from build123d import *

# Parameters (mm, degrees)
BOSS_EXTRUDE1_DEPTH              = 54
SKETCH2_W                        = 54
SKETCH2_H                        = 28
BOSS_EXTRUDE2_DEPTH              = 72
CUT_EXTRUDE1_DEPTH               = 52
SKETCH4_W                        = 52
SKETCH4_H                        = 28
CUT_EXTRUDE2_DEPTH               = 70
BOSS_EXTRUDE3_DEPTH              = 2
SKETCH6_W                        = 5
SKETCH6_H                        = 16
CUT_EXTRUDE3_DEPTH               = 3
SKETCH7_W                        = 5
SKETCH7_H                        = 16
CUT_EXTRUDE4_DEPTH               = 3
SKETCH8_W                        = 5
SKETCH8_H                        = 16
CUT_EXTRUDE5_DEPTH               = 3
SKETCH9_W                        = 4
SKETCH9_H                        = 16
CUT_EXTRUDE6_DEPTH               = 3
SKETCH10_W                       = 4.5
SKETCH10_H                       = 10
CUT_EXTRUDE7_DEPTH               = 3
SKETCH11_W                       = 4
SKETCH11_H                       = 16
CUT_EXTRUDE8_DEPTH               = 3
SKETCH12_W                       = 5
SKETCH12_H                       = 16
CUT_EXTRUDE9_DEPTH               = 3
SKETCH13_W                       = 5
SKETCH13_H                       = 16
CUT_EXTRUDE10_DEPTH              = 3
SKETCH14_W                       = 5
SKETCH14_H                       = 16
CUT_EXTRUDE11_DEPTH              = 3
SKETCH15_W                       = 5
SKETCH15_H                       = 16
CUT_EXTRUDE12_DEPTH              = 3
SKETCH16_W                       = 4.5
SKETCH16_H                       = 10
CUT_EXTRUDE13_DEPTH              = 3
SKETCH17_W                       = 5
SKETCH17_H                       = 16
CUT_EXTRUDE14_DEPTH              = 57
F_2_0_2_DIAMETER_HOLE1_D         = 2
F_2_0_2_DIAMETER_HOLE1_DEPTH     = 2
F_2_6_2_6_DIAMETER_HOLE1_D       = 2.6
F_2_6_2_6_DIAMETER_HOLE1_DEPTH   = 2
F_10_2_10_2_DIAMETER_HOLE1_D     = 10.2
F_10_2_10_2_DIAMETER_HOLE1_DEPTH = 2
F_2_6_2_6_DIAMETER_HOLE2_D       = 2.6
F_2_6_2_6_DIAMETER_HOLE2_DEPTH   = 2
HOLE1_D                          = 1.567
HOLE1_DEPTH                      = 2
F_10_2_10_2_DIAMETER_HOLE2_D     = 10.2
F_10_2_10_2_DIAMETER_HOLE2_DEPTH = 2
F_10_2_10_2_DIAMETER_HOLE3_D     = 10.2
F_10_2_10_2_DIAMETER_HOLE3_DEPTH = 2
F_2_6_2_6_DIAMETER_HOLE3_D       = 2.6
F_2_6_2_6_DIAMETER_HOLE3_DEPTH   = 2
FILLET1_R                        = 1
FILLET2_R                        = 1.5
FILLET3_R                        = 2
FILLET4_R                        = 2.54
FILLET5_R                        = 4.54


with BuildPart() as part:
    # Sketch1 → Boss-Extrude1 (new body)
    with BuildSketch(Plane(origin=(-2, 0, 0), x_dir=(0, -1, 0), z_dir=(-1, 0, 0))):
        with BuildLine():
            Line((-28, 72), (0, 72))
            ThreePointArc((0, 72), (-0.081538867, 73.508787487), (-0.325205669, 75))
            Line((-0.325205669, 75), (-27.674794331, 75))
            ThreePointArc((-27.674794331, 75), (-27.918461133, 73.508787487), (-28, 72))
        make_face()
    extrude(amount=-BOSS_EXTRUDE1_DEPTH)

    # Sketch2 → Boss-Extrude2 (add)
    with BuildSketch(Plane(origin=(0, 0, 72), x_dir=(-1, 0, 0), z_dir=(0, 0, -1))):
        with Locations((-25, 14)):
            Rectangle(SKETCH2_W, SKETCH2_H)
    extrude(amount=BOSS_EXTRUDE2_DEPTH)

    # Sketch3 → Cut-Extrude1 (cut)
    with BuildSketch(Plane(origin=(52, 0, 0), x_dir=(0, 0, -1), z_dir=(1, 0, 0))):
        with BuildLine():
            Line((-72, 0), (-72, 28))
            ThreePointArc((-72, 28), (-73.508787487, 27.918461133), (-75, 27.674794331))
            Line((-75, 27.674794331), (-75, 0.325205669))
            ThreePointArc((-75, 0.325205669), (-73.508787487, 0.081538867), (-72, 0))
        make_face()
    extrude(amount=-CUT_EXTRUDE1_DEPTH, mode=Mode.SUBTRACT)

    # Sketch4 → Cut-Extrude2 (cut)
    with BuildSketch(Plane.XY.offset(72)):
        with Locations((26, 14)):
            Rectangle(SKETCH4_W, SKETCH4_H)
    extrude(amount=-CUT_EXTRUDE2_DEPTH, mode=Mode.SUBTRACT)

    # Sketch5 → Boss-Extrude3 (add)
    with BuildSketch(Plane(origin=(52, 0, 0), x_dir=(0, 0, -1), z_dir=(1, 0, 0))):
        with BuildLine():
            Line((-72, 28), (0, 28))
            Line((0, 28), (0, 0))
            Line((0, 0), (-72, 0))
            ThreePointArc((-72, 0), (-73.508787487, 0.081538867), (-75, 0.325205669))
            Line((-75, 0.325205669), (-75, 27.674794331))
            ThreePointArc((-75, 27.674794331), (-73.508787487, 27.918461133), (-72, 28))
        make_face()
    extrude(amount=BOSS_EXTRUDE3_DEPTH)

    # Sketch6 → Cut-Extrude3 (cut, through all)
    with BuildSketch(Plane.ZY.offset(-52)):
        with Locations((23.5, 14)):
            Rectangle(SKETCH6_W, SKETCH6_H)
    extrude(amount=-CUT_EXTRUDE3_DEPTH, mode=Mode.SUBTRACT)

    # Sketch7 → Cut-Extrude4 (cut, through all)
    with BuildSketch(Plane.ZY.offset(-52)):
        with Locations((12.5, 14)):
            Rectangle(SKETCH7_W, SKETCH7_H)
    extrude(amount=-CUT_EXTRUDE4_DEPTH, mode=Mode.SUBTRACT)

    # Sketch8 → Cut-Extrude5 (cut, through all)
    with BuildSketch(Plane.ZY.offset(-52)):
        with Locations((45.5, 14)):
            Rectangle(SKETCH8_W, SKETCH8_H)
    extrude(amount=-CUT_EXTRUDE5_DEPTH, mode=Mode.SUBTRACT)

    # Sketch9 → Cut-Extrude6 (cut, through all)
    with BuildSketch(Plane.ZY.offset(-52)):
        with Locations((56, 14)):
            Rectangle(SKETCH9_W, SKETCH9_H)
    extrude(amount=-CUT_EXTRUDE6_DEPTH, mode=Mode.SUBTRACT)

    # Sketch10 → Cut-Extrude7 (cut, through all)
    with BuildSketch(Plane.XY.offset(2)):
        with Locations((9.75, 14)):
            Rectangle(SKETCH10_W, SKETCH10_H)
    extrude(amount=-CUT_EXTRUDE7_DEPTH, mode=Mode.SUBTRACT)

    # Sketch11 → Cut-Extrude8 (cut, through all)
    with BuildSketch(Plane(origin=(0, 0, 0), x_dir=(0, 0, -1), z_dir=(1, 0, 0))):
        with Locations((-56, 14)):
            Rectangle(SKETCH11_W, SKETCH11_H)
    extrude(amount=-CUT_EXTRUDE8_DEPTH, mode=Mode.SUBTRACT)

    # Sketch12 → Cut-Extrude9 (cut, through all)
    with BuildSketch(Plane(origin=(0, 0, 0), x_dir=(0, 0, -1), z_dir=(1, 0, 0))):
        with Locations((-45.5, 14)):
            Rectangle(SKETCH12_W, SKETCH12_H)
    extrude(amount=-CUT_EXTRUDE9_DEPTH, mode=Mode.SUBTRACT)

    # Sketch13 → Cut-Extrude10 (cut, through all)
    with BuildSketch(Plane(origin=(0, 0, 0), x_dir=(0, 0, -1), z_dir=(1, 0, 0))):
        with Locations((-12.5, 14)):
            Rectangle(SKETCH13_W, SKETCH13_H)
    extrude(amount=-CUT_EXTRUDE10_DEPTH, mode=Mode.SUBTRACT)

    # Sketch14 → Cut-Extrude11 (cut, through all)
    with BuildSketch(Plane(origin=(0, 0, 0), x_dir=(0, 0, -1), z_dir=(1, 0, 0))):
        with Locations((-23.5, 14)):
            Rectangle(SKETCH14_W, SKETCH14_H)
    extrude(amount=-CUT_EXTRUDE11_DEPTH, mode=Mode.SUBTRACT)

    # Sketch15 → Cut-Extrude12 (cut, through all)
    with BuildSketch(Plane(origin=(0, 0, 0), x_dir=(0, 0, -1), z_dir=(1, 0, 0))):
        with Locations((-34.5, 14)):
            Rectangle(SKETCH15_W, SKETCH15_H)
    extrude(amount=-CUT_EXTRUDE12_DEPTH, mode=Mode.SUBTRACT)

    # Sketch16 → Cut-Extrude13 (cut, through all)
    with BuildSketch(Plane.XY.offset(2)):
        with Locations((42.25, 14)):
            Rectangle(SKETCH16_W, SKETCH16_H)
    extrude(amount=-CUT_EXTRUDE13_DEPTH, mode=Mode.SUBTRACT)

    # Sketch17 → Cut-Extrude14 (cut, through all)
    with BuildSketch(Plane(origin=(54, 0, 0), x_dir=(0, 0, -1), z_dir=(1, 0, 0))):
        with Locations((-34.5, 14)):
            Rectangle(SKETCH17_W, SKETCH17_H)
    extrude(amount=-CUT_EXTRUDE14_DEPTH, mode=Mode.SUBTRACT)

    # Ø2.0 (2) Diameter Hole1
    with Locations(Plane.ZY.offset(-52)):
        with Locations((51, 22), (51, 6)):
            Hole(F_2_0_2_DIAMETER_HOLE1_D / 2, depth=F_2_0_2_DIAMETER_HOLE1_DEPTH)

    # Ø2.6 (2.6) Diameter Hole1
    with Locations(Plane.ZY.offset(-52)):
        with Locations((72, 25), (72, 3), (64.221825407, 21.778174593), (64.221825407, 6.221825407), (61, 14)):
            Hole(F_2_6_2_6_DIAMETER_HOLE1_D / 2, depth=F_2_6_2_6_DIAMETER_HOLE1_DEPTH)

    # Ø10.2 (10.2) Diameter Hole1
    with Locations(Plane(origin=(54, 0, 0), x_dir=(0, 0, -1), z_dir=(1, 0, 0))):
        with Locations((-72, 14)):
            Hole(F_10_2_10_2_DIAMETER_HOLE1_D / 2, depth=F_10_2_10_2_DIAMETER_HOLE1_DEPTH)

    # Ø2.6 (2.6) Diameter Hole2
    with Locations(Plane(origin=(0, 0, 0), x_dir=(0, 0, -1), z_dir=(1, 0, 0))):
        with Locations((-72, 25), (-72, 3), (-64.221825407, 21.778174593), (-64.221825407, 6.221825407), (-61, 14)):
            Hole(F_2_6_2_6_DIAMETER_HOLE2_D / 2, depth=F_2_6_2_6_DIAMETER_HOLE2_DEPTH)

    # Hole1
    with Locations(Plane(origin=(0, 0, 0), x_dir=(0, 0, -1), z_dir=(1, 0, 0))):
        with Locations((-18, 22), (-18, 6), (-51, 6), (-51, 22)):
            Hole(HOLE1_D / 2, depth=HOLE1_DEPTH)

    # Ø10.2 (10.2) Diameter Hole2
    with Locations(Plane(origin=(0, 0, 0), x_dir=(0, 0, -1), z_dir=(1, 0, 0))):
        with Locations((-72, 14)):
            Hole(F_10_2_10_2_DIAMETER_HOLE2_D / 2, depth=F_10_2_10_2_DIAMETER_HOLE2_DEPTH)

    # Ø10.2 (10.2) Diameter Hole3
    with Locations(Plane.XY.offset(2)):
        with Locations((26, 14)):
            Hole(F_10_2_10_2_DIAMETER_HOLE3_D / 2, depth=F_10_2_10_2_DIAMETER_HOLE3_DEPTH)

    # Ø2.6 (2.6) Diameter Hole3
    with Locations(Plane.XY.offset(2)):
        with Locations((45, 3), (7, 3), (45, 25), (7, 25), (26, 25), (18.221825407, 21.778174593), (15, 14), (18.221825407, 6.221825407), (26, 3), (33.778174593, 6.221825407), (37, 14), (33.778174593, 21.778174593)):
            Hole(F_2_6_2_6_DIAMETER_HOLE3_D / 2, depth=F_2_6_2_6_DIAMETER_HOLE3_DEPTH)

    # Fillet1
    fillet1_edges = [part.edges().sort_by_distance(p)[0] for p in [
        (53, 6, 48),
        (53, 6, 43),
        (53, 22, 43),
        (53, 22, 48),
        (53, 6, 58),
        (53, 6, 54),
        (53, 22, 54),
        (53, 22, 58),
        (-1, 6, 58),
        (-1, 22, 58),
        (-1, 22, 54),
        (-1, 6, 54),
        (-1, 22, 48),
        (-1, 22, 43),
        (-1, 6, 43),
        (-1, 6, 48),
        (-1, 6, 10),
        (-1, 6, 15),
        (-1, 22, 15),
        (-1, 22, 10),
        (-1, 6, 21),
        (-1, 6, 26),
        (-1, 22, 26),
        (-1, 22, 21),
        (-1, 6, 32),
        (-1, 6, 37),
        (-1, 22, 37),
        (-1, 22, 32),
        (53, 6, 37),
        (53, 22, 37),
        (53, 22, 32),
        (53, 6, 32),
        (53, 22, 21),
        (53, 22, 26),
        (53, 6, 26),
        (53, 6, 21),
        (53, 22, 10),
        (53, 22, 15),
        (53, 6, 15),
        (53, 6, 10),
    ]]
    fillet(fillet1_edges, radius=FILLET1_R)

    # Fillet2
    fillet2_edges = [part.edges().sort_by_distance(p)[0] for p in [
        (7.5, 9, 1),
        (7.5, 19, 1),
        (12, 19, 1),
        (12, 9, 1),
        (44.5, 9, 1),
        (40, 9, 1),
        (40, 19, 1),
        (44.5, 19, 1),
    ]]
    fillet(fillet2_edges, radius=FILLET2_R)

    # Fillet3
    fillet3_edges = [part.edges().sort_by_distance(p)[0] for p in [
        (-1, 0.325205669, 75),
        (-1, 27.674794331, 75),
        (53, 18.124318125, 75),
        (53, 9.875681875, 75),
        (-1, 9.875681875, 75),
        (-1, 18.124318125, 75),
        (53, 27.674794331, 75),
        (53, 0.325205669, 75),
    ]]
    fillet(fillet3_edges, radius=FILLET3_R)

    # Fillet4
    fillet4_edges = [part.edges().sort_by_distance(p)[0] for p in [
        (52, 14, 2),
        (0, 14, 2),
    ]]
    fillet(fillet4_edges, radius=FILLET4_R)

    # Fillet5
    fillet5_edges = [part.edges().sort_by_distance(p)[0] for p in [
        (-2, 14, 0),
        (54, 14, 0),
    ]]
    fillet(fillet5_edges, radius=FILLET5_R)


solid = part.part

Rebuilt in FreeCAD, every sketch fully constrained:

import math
import FreeCAD as App
import Part
import Sketcher
from FreeCAD import Vector


def edges_at(feature, points):
    """Names of the edges that pass closest to the given points."""
    edges = feature.Shape.Edges
    near = lambda p: min(range(len(edges)), key=lambda i: edges[i].distToShape(Part.Vertex(*p))[0])
    return sorted({f"Edge{near(p) + 1}" for p in points})

doc = App.newDocument("Part")
body = doc.addObject("PartDesign::Body", "Body")

# Sketch on YZ plane
sketch1 = doc.addObject("Sketcher::SketchObject", "Sketch")
body.addObject(sketch1)
sketch1.AttachmentSupport = (doc.YZ_Plane, [""])
sketch1.MapMode = "FlatFace"
sketch1.AttachmentOffset = App.Placement(Vector(0, 0, -2), App.Rotation())
sketch1.addGeometry([
    Part.LineSegment(Vector(28, 72, 0), Vector(0, 72, 0)),
    Part.ArcOfCircle(Part.Circle(Vector(14, 72, 0), Vector(0, 0, 1), 14), math.radians(167.63), math.radians(180)),
    Part.LineSegment(Vector(0.3, 75, 0), Vector(27.7, 75, 0)),
    Part.ArcOfCircle(Part.Circle(Vector(14, 72, 0), Vector(0, 0, 1), 14), math.radians(0), math.radians(12.37)),
], False)
sketch1.addConstraint([
    Sketcher.Constraint("Coincident", 0, 2, 1, 2),
    Sketcher.Constraint("Coincident", 1, 1, 2, 1),
    Sketcher.Constraint("Coincident", 2, 2, 3, 2),
    Sketcher.Constraint("Coincident", 3, 1, 0, 1),
    Sketcher.Constraint("Horizontal", 0),
    Sketcher.Constraint("Horizontal", 2),
    Sketcher.Constraint("Coincident", 3, 3, 1, 3),
    Sketcher.Constraint("Equal", 1, 3),
    Sketcher.Constraint("PointOnObject", 0, 2, -2),
    Sketcher.Constraint("Horizontal", 3, 3, 0, 2),
    Sketcher.Constraint("Radius", 1, 14.0),
    Sketcher.Constraint("DistanceY", -1, 1, 1, 3, 72.0),
    Sketcher.Constraint("DistanceY", -1, 1, 1, 1, 75.0),
])
pad1 = doc.addObject("PartDesign::Pad", "Pad")
body.addObject(pad1)
pad1.Profile = sketch1
pad1.Length = 54

# Sketch on XY plane
sketch2 = doc.addObject("Sketcher::SketchObject", "Sketch001")
body.addObject(sketch2)
sketch2.AttachmentSupport = (doc.XY_Plane, [""])
sketch2.MapMode = "FlatFace"
sketch2.AttachmentOffset = App.Placement(Vector(0, 0, 72), App.Rotation())
sketch2.addGeometry([
    Part.LineSegment(Vector(52, 28, 0), Vector(52, 0, 0)),
    Part.LineSegment(Vector(52, 0, 0), Vector(-2, 0, 0)),
    Part.LineSegment(Vector(-2, 0, 0), Vector(-2, 28, 0)),
    Part.LineSegment(Vector(-2, 28, 0), Vector(52, 28, 0)),
], False)
sketch2.addConstraint([
    Sketcher.Constraint("Coincident", 0, 2, 1, 1),
    Sketcher.Constraint("Coincident", 1, 2, 2, 1),
    Sketcher.Constraint("Coincident", 2, 2, 3, 1),
    Sketcher.Constraint("Coincident", 3, 2, 0, 1),
    Sketcher.Constraint("Vertical", 0),
    Sketcher.Constraint("Horizontal", 1),
    Sketcher.Constraint("Vertical", 2),
    Sketcher.Constraint("Horizontal", 3),
    Sketcher.Constraint("PointOnObject", 0, 2, -1),
    Sketcher.Constraint("DistanceX", 1, 2, 1, 1, 54.0),
    Sketcher.Constraint("DistanceY", 0, 2, 0, 1, 28.0),
    Sketcher.Constraint("DistanceX", -1, 1, 0, 2, 52.0),
])
pad2 = doc.addObject("PartDesign::Pad", "Pad001")
body.addObject(pad2)
pad2.Profile = sketch2
pad2.Length = 72
pad2.Reversed = True

# Sketch on YZ plane
sketch3 = doc.addObject("Sketcher::SketchObject", "Sketch002")
body.addObject(sketch3)
sketch3.AttachmentSupport = (doc.YZ_Plane, [""])
sketch3.MapMode = "FlatFace"
sketch3.AttachmentOffset = App.Placement(Vector(0, 0, 52), App.Rotation())
sketch3.addGeometry([
    Part.LineSegment(Vector(0, 72, 0), Vector(28, 72, 0)),
    Part.ArcOfCircle(Part.Circle(Vector(14, 72, 0), Vector(0, 0, 1), 14), math.radians(0), math.radians(12.37)),
    Part.LineSegment(Vector(27.7, 75, 0), Vector(0.3, 75, 0)),
    Part.ArcOfCircle(Part.Circle(Vector(14, 72, 0), Vector(0, 0, 1), 14), math.radians(167.63), math.radians(180)),
], False)
sketch3.addConstraint([
    Sketcher.Constraint("Coincident", 0, 2, 1, 1),
    Sketcher.Constraint("Coincident", 1, 2, 2, 1),
    Sketcher.Constraint("Coincident", 2, 2, 3, 1),
    Sketcher.Constraint("Coincident", 3, 2, 0, 1),
    Sketcher.Constraint("Horizontal", 0),
    Sketcher.Constraint("Horizontal", 2),
    Sketcher.Constraint("Coincident", 3, 3, 1, 3),
    Sketcher.Constraint("Equal", 1, 3),
    Sketcher.Constraint("PointOnObject", 3, 2, -2),
    Sketcher.Constraint("Horizontal", 3, 3, 0, 2),
    Sketcher.Constraint("Radius", 1, 14.0),
    Sketcher.Constraint("DistanceY", -1, 1, 1, 3, 72.0),
    Sketcher.Constraint("DistanceY", -1, 1, 1, 2, 75.0),
])
pocket1 = doc.addObject("PartDesign::Pocket", "Pocket")
body.addObject(pocket1)
pocket1.Profile = sketch3
pocket1.Length = 52

# Sketch on XY plane
sketch4 = doc.addObject("Sketcher::SketchObject", "Sketch003")
body.addObject(sketch4)
sketch4.AttachmentSupport = (doc.XY_Plane, [""])
sketch4.MapMode = "FlatFace"
sketch4.AttachmentOffset = App.Placement(Vector(0, 0, 72), App.Rotation())
sketch4.addGeometry([
    Part.LineSegment(Vector(0, 28, 0), Vector(0, 0, 0)),
    Part.LineSegment(Vector(0, 0, 0), Vector(52, 0, 0)),
    Part.LineSegment(Vector(52, 0, 0), Vector(52, 28, 0)),
    Part.LineSegment(Vector(52, 28, 0), Vector(0, 28, 0)),
], False)
sketch4.addConstraint([
    Sketcher.Constraint("Coincident", 0, 2, 1, 1),
    Sketcher.Constraint("Coincident", 1, 2, 2, 1),
    Sketcher.Constraint("Coincident", 2, 2, 3, 1),
    Sketcher.Constraint("Coincident", 3, 2, 0, 1),
    Sketcher.Constraint("Vertical", 0),
    Sketcher.Constraint("Horizontal", 1),
    Sketcher.Constraint("Vertical", 2),
    Sketcher.Constraint("Horizontal", 3),
    Sketcher.Constraint("Coincident", 0, 2, -1, 1),
    Sketcher.Constraint("DistanceX", 1, 1, 1, 2, 52.0),
    Sketcher.Constraint("DistanceY", 0, 2, 0, 1, 28.0),
])
pocket2 = doc.addObject("PartDesign::Pocket", "Pocket001")
body.addObject(pocket2)
pocket2.Profile = sketch4
pocket2.Length = 70

# Sketch on YZ plane
sketch5 = doc.addObject("Sketcher::SketchObject", "Sketch004")
body.addObject(sketch5)
sketch5.AttachmentSupport = (doc.YZ_Plane, [""])
sketch5.MapMode = "FlatFace"
sketch5.AttachmentOffset = App.Placement(Vector(0, 0, 52), App.Rotation())
sketch5.addGeometry([
    Part.LineSegment(Vector(28, 0, 0), Vector(28, 72, 0)),  # 0
    Part.ArcOfCircle(Part.Circle(Vector(14, 72, 0), Vector(0, 0, 1), 14), math.radians(0), math.radians(12.37)),  # 1
    Part.LineSegment(Vector(27.7, 75, 0), Vector(0.3, 75, 0)),  # 2
    Part.ArcOfCircle(Part.Circle(Vector(14, 72, 0), Vector(0, 0, 1), 14), math.radians(167.63), math.radians(180)),  # 3
    Part.LineSegment(Vector(0, 72, 0), Vector(0, 0, 0)),  # 4
    Part.LineSegment(Vector(0, 0, 0), Vector(28, 0, 0)),  # 5
], False)
sketch5.addConstraint([
    Sketcher.Constraint("Tangent", 0, 2, 1, 1),
    Sketcher.Constraint("Coincident", 1, 2, 2, 1),
    Sketcher.Constraint("Coincident", 2, 2, 3, 1),
    Sketcher.Constraint("Tangent", 3, 2, 4, 1),
    Sketcher.Constraint("Coincident", 4, 2, 5, 1),
    Sketcher.Constraint("Coincident", 5, 2, 0, 1),
    Sketcher.Constraint("Vertical", 0),
    Sketcher.Constraint("Horizontal", 2),
    Sketcher.Constraint("Vertical", 4),
    Sketcher.Constraint("Horizontal", 5),
    Sketcher.Constraint("Coincident", 4, 2, -1, 1),
    Sketcher.Constraint("Coincident", 3, 3, 1, 3),
    Sketcher.Constraint("Equal", 1, 3),
    Sketcher.Constraint("Radius", 1, 14.0),
    Sketcher.Constraint("DistanceY", 0, 1, 0, 2, 72.0),
    Sketcher.Constraint("DistanceY", -1, 1, 1, 2, 75.0),
])
pad3 = doc.addObject("PartDesign::Pad", "Pad002")
body.addObject(pad3)
pad3.Profile = sketch5
pad3.Length = 2

# Sketch on YZ plane
sketch6 = doc.addObject("Sketcher::SketchObject", "Sketch005")
body.addObject(sketch6)
sketch6.AttachmentSupport = (doc.YZ_Plane, [""])
sketch6.MapMode = "FlatFace"
sketch6.AttachmentOffset = App.Placement(Vector(0, 0, 52), App.Rotation())
sketch6.addGeometry([
    Part.LineSegment(Vector(22, 21, 0), Vector(6, 21, 0)),
    Part.LineSegment(Vector(6, 21, 0), Vector(6, 26, 0)),
    Part.LineSegment(Vector(6, 26, 0), Vector(22, 26, 0)),
    Part.LineSegment(Vector(22, 26, 0), Vector(22, 21, 0)),
], False)
sketch6.addConstraint([
    Sketcher.Constraint("Coincident", 0, 2, 1, 1),
    Sketcher.Constraint("Coincident", 1, 2, 2, 1),
    Sketcher.Constraint("Coincident", 2, 2, 3, 1),
    Sketcher.Constraint("Coincident", 3, 2, 0, 1),
    Sketcher.Constraint("Horizontal", 0),
    Sketcher.Constraint("Vertical", 1),
    Sketcher.Constraint("Horizontal", 2),
    Sketcher.Constraint("Vertical", 3),
    Sketcher.Constraint("DistanceX", 0, 2, 0, 1, 16.0),
    Sketcher.Constraint("DistanceY", 1, 1, 1, 2, 5.0),
    Sketcher.Constraint("DistanceX", -1, 1, 0, 2, 6.0),
    Sketcher.Constraint("DistanceY", -1, 1, 0, 2, 21.0),
])
pocket3 = doc.addObject("PartDesign::Pocket", "Pocket002")
body.addObject(pocket3)
pocket3.Profile = sketch6
pocket3.Type = "ThroughAll"
pocket3.Reversed = True

# Sketch on YZ plane
sketch7 = doc.addObject("Sketcher::SketchObject", "Sketch006")
body.addObject(sketch7)
sketch7.AttachmentSupport = (doc.YZ_Plane, [""])
sketch7.MapMode = "FlatFace"
sketch7.AttachmentOffset = App.Placement(Vector(0, 0, 52), App.Rotation())
sketch7.addGeometry([
    Part.LineSegment(Vector(22, 10, 0), Vector(6, 10, 0)),
    Part.LineSegment(Vector(6, 10, 0), Vector(6, 15, 0)),
    Part.LineSegment(Vector(6, 15, 0), Vector(22, 15, 0)),
    Part.LineSegment(Vector(22, 15, 0), Vector(22, 10, 0)),
], False)
sketch7.addConstraint([
    Sketcher.Constraint("Coincident", 0, 2, 1, 1),
    Sketcher.Constraint("Coincident", 1, 2, 2, 1),
    Sketcher.Constraint("Coincident", 2, 2, 3, 1),
    Sketcher.Constraint("Coincident", 3, 2, 0, 1),
    Sketcher.Constraint("Horizontal", 0),
    Sketcher.Constraint("Vertical", 1),
    Sketcher.Constraint("Horizontal", 2),
    Sketcher.Constraint("Vertical", 3),
    Sketcher.Constraint("DistanceX", 0, 2, 0, 1, 16.0),
    Sketcher.Constraint("DistanceY", 1, 1, 1, 2, 5.0),
    Sketcher.Constraint("DistanceX", -1, 1, 0, 2, 6.0),
    Sketcher.Constraint("DistanceY", -1, 1, 0, 2, 10.0),
])
pocket4 = doc.addObject("PartDesign::Pocket", "Pocket003")
body.addObject(pocket4)
pocket4.Profile = sketch7
pocket4.Type = "ThroughAll"
pocket4.Reversed = True

# Sketch on YZ plane
sketch8 = doc.addObject("Sketcher::SketchObject", "Sketch007")
body.addObject(sketch8)
sketch8.AttachmentSupport = (doc.YZ_Plane, [""])
sketch8.MapMode = "FlatFace"
sketch8.AttachmentOffset = App.Placement(Vector(0, 0, 52), App.Rotation())
sketch8.addGeometry([
    Part.LineSegment(Vector(22, 43, 0), Vector(6, 43, 0)),
    Part.LineSegment(Vector(6, 43, 0), Vector(6, 48, 0)),
    Part.LineSegment(Vector(6, 48, 0), Vector(22, 48, 0)),
    Part.LineSegment(Vector(22, 48, 0), Vector(22, 43, 0)),
], False)
sketch8.addConstraint([
    Sketcher.Constraint("Coincident", 0, 2, 1, 1),
    Sketcher.Constraint("Coincident", 1, 2, 2, 1),
    Sketcher.Constraint("Coincident", 2, 2, 3, 1),
    Sketcher.Constraint("Coincident", 3, 2, 0, 1),
    Sketcher.Constraint("Horizontal", 0),
    Sketcher.Constraint("Vertical", 1),
    Sketcher.Constraint("Horizontal", 2),
    Sketcher.Constraint("Vertical", 3),
    Sketcher.Constraint("DistanceX", 0, 2, 0, 1, 16.0),
    Sketcher.Constraint("DistanceY", 1, 1, 1, 2, 5.0),
    Sketcher.Constraint("DistanceX", -1, 1, 0, 2, 6.0),
    Sketcher.Constraint("DistanceY", -1, 1, 0, 2, 43.0),
])
pocket5 = doc.addObject("PartDesign::Pocket", "Pocket004")
body.addObject(pocket5)
pocket5.Profile = sketch8
pocket5.Type = "ThroughAll"
pocket5.Reversed = True

# Sketch on YZ plane
sketch9 = doc.addObject("Sketcher::SketchObject", "Sketch008")
body.addObject(sketch9)
sketch9.AttachmentSupport = (doc.YZ_Plane, [""])
sketch9.MapMode = "FlatFace"
sketch9.AttachmentOffset = App.Placement(Vector(0, 0, 52), App.Rotation())
sketch9.addGeometry([
    Part.LineSegment(Vector(22, 54, 0), Vector(6, 54, 0)),
    Part.LineSegment(Vector(6, 54, 0), Vector(6, 58, 0)),
    Part.LineSegment(Vector(6, 58, 0), Vector(22, 58, 0)),
    Part.LineSegment(Vector(22, 58, 0), Vector(22, 54, 0)),
], False)
sketch9.addConstraint([
    Sketcher.Constraint("Coincident", 0, 2, 1, 1),
    Sketcher.Constraint("Coincident", 1, 2, 2, 1),
    Sketcher.Constraint("Coincident", 2, 2, 3, 1),
    Sketcher.Constraint("Coincident", 3, 2, 0, 1),
    Sketcher.Constraint("Horizontal", 0),
    Sketcher.Constraint("Vertical", 1),
    Sketcher.Constraint("Horizontal", 2),
    Sketcher.Constraint("Vertical", 3),
    Sketcher.Constraint("DistanceX", 0, 2, 0, 1, 16.0),
    Sketcher.Constraint("DistanceY", 1, 1, 1, 2, 4.0),
    Sketcher.Constraint("DistanceX", -1, 1, 0, 2, 6.0),
    Sketcher.Constraint("DistanceY", -1, 1, 0, 2, 54.0),
])
pocket6 = doc.addObject("PartDesign::Pocket", "Pocket005")
body.addObject(pocket6)
pocket6.Profile = sketch9
pocket6.Type = "ThroughAll"
pocket6.Reversed = True

# Sketch on XY plane
sketch10 = doc.addObject("Sketcher::SketchObject", "Sketch009")
body.addObject(sketch10)
sketch10.AttachmentSupport = (doc.XY_Plane, [""])
sketch10.MapMode = "FlatFace"
sketch10.AttachmentOffset = App.Placement(Vector(0, 0, 2), App.Rotation())
sketch10.addGeometry([
    Part.LineSegment(Vector(7.5, 19, 0), Vector(7.5, 9, 0)),
    Part.LineSegment(Vector(7.5, 9, 0), Vector(12, 9, 0)),
    Part.LineSegment(Vector(12, 9, 0), Vector(12, 19, 0)),
    Part.LineSegment(Vector(12, 19, 0), Vector(7.5, 19, 0)),
], False)
sketch10.addConstraint([
    Sketcher.Constraint("Coincident", 0, 2, 1, 1),
    Sketcher.Constraint("Coincident", 1, 2, 2, 1),
    Sketcher.Constraint("Coincident", 2, 2, 3, 1),
    Sketcher.Constraint("Coincident", 3, 2, 0, 1),
    Sketcher.Constraint("Vertical", 0),
    Sketcher.Constraint("Horizontal", 1),
    Sketcher.Constraint("Vertical", 2),
    Sketcher.Constraint("Horizontal", 3),
    Sketcher.Constraint("DistanceY", 0, 2, 0, 1, 10.0),
    Sketcher.Constraint("DistanceX", 1, 1, 1, 2, 4.5),
    Sketcher.Constraint("DistanceY", -1, 1, 0, 2, 9.0),
    Sketcher.Constraint("DistanceX", -1, 1, 1, 2, 12.0),
])
pocket7 = doc.addObject("PartDesign::Pocket", "Pocket006")
body.addObject(pocket7)
pocket7.Profile = sketch10
pocket7.Type = "ThroughAll"

# Sketch on YZ plane
sketch11 = doc.addObject("Sketcher::SketchObject", "Sketch010")
body.addObject(sketch11)
sketch11.AttachmentSupport = (doc.YZ_Plane, [""])
sketch11.MapMode = "FlatFace"
sketch11.addGeometry([
    Part.LineSegment(Vector(22, 58, 0), Vector(6, 58, 0)),
    Part.LineSegment(Vector(6, 58, 0), Vector(6, 54, 0)),
    Part.LineSegment(Vector(6, 54, 0), Vector(22, 54, 0)),
    Part.LineSegment(Vector(22, 54, 0), Vector(22, 58, 0)),
], False)
sketch11.addConstraint([
    Sketcher.Constraint("Coincident", 0, 2, 1, 1),
    Sketcher.Constraint("Coincident", 1, 2, 2, 1),
    Sketcher.Constraint("Coincident", 2, 2, 3, 1),
    Sketcher.Constraint("Coincident", 3, 2, 0, 1),
    Sketcher.Constraint("Horizontal", 0),
    Sketcher.Constraint("Vertical", 1),
    Sketcher.Constraint("Horizontal", 2),
    Sketcher.Constraint("Vertical", 3),
    Sketcher.Constraint("DistanceX", 0, 2, 0, 1, 16.0),
    Sketcher.Constraint("DistanceY", 1, 2, 1, 1, 4.0),
    Sketcher.Constraint("DistanceX", -1, 1, 0, 2, 6.0),
    Sketcher.Constraint("DistanceY", -1, 1, 0, 2, 58.0),
])
pocket8 = doc.addObject("PartDesign::Pocket", "Pocket007")
body.addObject(pocket8)
pocket8.Profile = sketch11
pocket8.Type = "ThroughAll"

# Sketch on YZ plane
sketch12 = doc.addObject("Sketcher::SketchObject", "Sketch011")
body.addObject(sketch12)
sketch12.AttachmentSupport = (doc.YZ_Plane, [""])
sketch12.MapMode = "FlatFace"
sketch12.addGeometry([
    Part.LineSegment(Vector(22, 48, 0), Vector(6, 48, 0)),
    Part.LineSegment(Vector(6, 48, 0), Vector(6, 43, 0)),
    Part.LineSegment(Vector(6, 43, 0), Vector(22, 43, 0)),
    Part.LineSegment(Vector(22, 43, 0), Vector(22, 48, 0)),
], False)
sketch12.addConstraint([
    Sketcher.Constraint("Coincident", 0, 2, 1, 1),
    Sketcher.Constraint("Coincident", 1, 2, 2, 1),
    Sketcher.Constraint("Coincident", 2, 2, 3, 1),
    Sketcher.Constraint("Coincident", 3, 2, 0, 1),
    Sketcher.Constraint("Horizontal", 0),
    Sketcher.Constraint("Vertical", 1),
    Sketcher.Constraint("Horizontal", 2),
    Sketcher.Constraint("Vertical", 3),
    Sketcher.Constraint("DistanceX", 0, 2, 0, 1, 16.0),
    Sketcher.Constraint("DistanceY", 1, 2, 1, 1, 5.0),
    Sketcher.Constraint("DistanceX", -1, 1, 0, 2, 6.0),
    Sketcher.Constraint("DistanceY", -1, 1, 0, 2, 48.0),
])
pocket9 = doc.addObject("PartDesign::Pocket", "Pocket008")
body.addObject(pocket9)
pocket9.Profile = sketch12
pocket9.Type = "ThroughAll"

# Sketch on YZ plane
sketch13 = doc.addObject("Sketcher::SketchObject", "Sketch012")
body.addObject(sketch13)
sketch13.AttachmentSupport = (doc.YZ_Plane, [""])
sketch13.MapMode = "FlatFace"
sketch13.addGeometry([
    Part.LineSegment(Vector(22, 15, 0), Vector(6, 15, 0)),
    Part.LineSegment(Vector(6, 15, 0), Vector(6, 10, 0)),
    Part.LineSegment(Vector(6, 10, 0), Vector(22, 10, 0)),
    Part.LineSegment(Vector(22, 10, 0), Vector(22, 15, 0)),
], False)
sketch13.addConstraint([
    Sketcher.Constraint("Coincident", 0, 2, 1, 1),
    Sketcher.Constraint("Coincident", 1, 2, 2, 1),
    Sketcher.Constraint("Coincident", 2, 2, 3, 1),
    Sketcher.Constraint("Coincident", 3, 2, 0, 1),
    Sketcher.Constraint("Horizontal", 0),
    Sketcher.Constraint("Vertical", 1),
    Sketcher.Constraint("Horizontal", 2),
    Sketcher.Constraint("Vertical", 3),
    Sketcher.Constraint("DistanceX", 0, 2, 0, 1, 16.0),
    Sketcher.Constraint("DistanceY", 1, 2, 1, 1, 5.0),
    Sketcher.Constraint("DistanceX", -1, 1, 0, 2, 6.0),
    Sketcher.Constraint("DistanceY", -1, 1, 0, 2, 15.0),
])
pocket10 = doc.addObject("PartDesign::Pocket", "Pocket009")
body.addObject(pocket10)
pocket10.Profile = sketch13
pocket10.Type = "ThroughAll"

# Sketch on YZ plane
sketch14 = doc.addObject("Sketcher::SketchObject", "Sketch013")
body.addObject(sketch14)
sketch14.AttachmentSupport = (doc.YZ_Plane, [""])
sketch14.MapMode = "FlatFace"
sketch14.addGeometry([
    Part.LineSegment(Vector(22, 26, 0), Vector(6, 26, 0)),
    Part.LineSegment(Vector(6, 26, 0), Vector(6, 21, 0)),
    Part.LineSegment(Vector(6, 21, 0), Vector(22, 21, 0)),
    Part.LineSegment(Vector(22, 21, 0), Vector(22, 26, 0)),
], False)
sketch14.addConstraint([
    Sketcher.Constraint("Coincident", 0, 2, 1, 1),
    Sketcher.Constraint("Coincident", 1, 2, 2, 1),
    Sketcher.Constraint("Coincident", 2, 2, 3, 1),
    Sketcher.Constraint("Coincident", 3, 2, 0, 1),
    Sketcher.Constraint("Horizontal", 0),
    Sketcher.Constraint("Vertical", 1),
    Sketcher.Constraint("Horizontal", 2),
    Sketcher.Constraint("Vertical", 3),
    Sketcher.Constraint("DistanceX", 0, 2, 0, 1, 16.0),
    Sketcher.Constraint("DistanceY", 1, 2, 1, 1, 5.0),
    Sketcher.Constraint("DistanceX", -1, 1, 0, 2, 6.0),
    Sketcher.Constraint("DistanceY", -1, 1, 0, 2, 26.0),
])
pocket11 = doc.addObject("PartDesign::Pocket", "Pocket010")
body.addObject(pocket11)
pocket11.Profile = sketch14
pocket11.Type = "ThroughAll"

# Sketch on YZ plane
sketch15 = doc.addObject("Sketcher::SketchObject", "Sketch014")
body.addObject(sketch15)
sketch15.AttachmentSupport = (doc.YZ_Plane, [""])
sketch15.MapMode = "FlatFace"
sketch15.addGeometry([
    Part.LineSegment(Vector(22, 37, 0), Vector(6, 37, 0)),
    Part.LineSegment(Vector(6, 37, 0), Vector(6, 32, 0)),
    Part.LineSegment(Vector(6, 32, 0), Vector(22, 32, 0)),
    Part.LineSegment(Vector(22, 32, 0), Vector(22, 37, 0)),
], False)
sketch15.addConstraint([
    Sketcher.Constraint("Coincident", 0, 2, 1, 1),
    Sketcher.Constraint("Coincident", 1, 2, 2, 1),
    Sketcher.Constraint("Coincident", 2, 2, 3, 1),
    Sketcher.Constraint("Coincident", 3, 2, 0, 1),
    Sketcher.Constraint("Horizontal", 0),
    Sketcher.Constraint("Vertical", 1),
    Sketcher.Constraint("Horizontal", 2),
    Sketcher.Constraint("Vertical", 3),
    Sketcher.Constraint("DistanceX", 0, 2, 0, 1, 16.0),
    Sketcher.Constraint("DistanceY", 1, 2, 1, 1, 5.0),
    Sketcher.Constraint("DistanceX", -1, 1, 0, 2, 6.0),
    Sketcher.Constraint("DistanceY", -1, 1, 0, 2, 37.0),
])
pocket12 = doc.addObject("PartDesign::Pocket", "Pocket011")
body.addObject(pocket12)
pocket12.Profile = sketch15
pocket12.Type = "ThroughAll"

# Sketch on XY plane
sketch16 = doc.addObject("Sketcher::SketchObject", "Sketch015")
body.addObject(sketch16)
sketch16.AttachmentSupport = (doc.XY_Plane, [""])
sketch16.MapMode = "FlatFace"
sketch16.AttachmentOffset = App.Placement(Vector(0, 0, 2), App.Rotation())
sketch16.addGeometry([
    Part.LineSegment(Vector(40, 19, 0), Vector(40, 9, 0)),
    Part.LineSegment(Vector(40, 9, 0), Vector(44.5, 9, 0)),
    Part.LineSegment(Vector(44.5, 9, 0), Vector(44.5, 19, 0)),
    Part.LineSegment(Vector(44.5, 19, 0), Vector(40, 19, 0)),
], False)
sketch16.addConstraint([
    Sketcher.Constraint("Coincident", 0, 2, 1, 1),
    Sketcher.Constraint("Coincident", 1, 2, 2, 1),
    Sketcher.Constraint("Coincident", 2, 2, 3, 1),
    Sketcher.Constraint("Coincident", 3, 2, 0, 1),
    Sketcher.Constraint("Vertical", 0),
    Sketcher.Constraint("Horizontal", 1),
    Sketcher.Constraint("Vertical", 2),
    Sketcher.Constraint("Horizontal", 3),
    Sketcher.Constraint("DistanceY", 0, 2, 0, 1, 10.0),
    Sketcher.Constraint("DistanceX", 1, 1, 1, 2, 4.5),
    Sketcher.Constraint("DistanceX", -1, 1, 0, 2, 40.0),
    Sketcher.Constraint("DistanceY", -1, 1, 0, 2, 9.0),
])
pocket13 = doc.addObject("PartDesign::Pocket", "Pocket012")
body.addObject(pocket13)
pocket13.Profile = sketch16
pocket13.Type = "ThroughAll"

# Sketch on YZ plane
sketch17 = doc.addObject("Sketcher::SketchObject", "Sketch016")
body.addObject(sketch17)
sketch17.AttachmentSupport = (doc.YZ_Plane, [""])
sketch17.MapMode = "FlatFace"
sketch17.AttachmentOffset = App.Placement(Vector(0, 0, 54), App.Rotation())
sketch17.addGeometry([
    Part.LineSegment(Vector(22, 37, 0), Vector(6, 37, 0)),
    Part.LineSegment(Vector(6, 37, 0), Vector(6, 32, 0)),
    Part.LineSegment(Vector(6, 32, 0), Vector(22, 32, 0)),
    Part.LineSegment(Vector(22, 32, 0), Vector(22, 37, 0)),
], False)
sketch17.addConstraint([
    Sketcher.Constraint("Coincident", 0, 2, 1, 1),
    Sketcher.Constraint("Coincident", 1, 2, 2, 1),
    Sketcher.Constraint("Coincident", 2, 2, 3, 1),
    Sketcher.Constraint("Coincident", 3, 2, 0, 1),
    Sketcher.Constraint("Horizontal", 0),
    Sketcher.Constraint("Vertical", 1),
    Sketcher.Constraint("Horizontal", 2),
    Sketcher.Constraint("Vertical", 3),
    Sketcher.Constraint("DistanceX", 0, 2, 0, 1, 16.0),
    Sketcher.Constraint("DistanceY", 1, 2, 1, 1, 5.0),
    Sketcher.Constraint("DistanceX", -1, 1, 0, 2, 6.0),
    Sketcher.Constraint("DistanceY", -1, 1, 0, 2, 37.0),
])
pocket14 = doc.addObject("PartDesign::Pocket", "Pocket013")
body.addObject(pocket14)
pocket14.Profile = sketch17
pocket14.Type = "ThroughAll"

# Sketch on YZ plane
sketch18 = doc.addObject("Sketcher::SketchObject", "Sketch017")
body.addObject(sketch18)
sketch18.AttachmentSupport = (doc.YZ_Plane, [""])
sketch18.MapMode = "FlatFace"
sketch18.AttachmentOffset = App.Placement(Vector(0, 0, 52), App.Rotation())
sketch18.addGeometry([
    Part.Circle(Vector(22, 51, 0), Vector(0, 0, 1), 1),
    Part.Circle(Vector(6, 51, 0), Vector(0, 0, 1), 1),
], False)
sketch18.addConstraint([
    Sketcher.Constraint("Equal", 0, 1),
    Sketcher.Constraint("Horizontal", 0, 3, 1, 3),
    Sketcher.Constraint("Diameter", 0, 2.0),
    Sketcher.Constraint("DistanceX", -1, 1, 0, 3, 22.0),
    Sketcher.Constraint("DistanceY", -1, 1, 0, 3, 51.0),
    Sketcher.Constraint("DistanceX", -1, 1, 1, 3, 6.0),
])
doc.recompute()
hole = doc.addObject("PartDesign::Hole", "Hole")
body.addObject(hole)
hole.Profile = sketch18
hole.ThreadType = "None"
hole.Diameter = 2
hole.DepthType = "Dimension"
hole.Depth = 2
hole.DrillPoint = "Flat"
hole.Reversed = True

# Sketch on YZ plane
sketch19 = doc.addObject("Sketcher::SketchObject", "Sketch018")
body.addObject(sketch19)
sketch19.AttachmentSupport = (doc.YZ_Plane, [""])
sketch19.MapMode = "FlatFace"
sketch19.AttachmentOffset = App.Placement(Vector(0, 0, 52), App.Rotation())
sketch19.addGeometry([
    Part.Circle(Vector(25, 72, 0), Vector(0, 0, 1), 1.3),  # 0
    Part.Circle(Vector(3, 72, 0), Vector(0, 0, 1), 1.3),  # 1
    Part.Circle(Vector(21.8, 64.2, 0), Vector(0, 0, 1), 1.3),  # 2
    Part.Circle(Vector(6.2, 64.2, 0), Vector(0, 0, 1), 1.3),  # 3
    Part.Circle(Vector(14, 61, 0), Vector(0, 0, 1), 1.3),  # 4
], False)
sketch19.addConstraint([
    Sketcher.Constraint("Equal", 0, 1),
    Sketcher.Constraint("Equal", 1, 2),
    Sketcher.Constraint("Equal", 2, 3),
    Sketcher.Constraint("Equal", 3, 4),
    Sketcher.Constraint("Horizontal", 0, 3, 1, 3),
    Sketcher.Constraint("Horizontal", 2, 3, 3, 3),
    Sketcher.Constraint("Diameter", 0, 2.6),
    Sketcher.Constraint("DistanceX", -1, 1, 0, 3, 25.0),
    Sketcher.Constraint("DistanceY", -1, 1, 0, 3, 72.0),
    Sketcher.Constraint("DistanceX", -1, 1, 1, 3, 3.0),
    Sketcher.Constraint("DistanceX", -1, 1, 4, 3, 14.0),
    Sketcher.Constraint("DistanceY", -1, 1, 4, 3, 61.0),
    Sketcher.Constraint("DistanceX", 3, 3, 2, 3, 15.556349),
    Sketcher.Constraint("DistanceX", -1, 1, 2, 3, 21.778175),
    Sketcher.Constraint("DistanceY", -1, 1, 2, 3, 64.221825),
])
doc.recompute()
hole2 = doc.addObject("PartDesign::Hole", "Hole001")
body.addObject(hole2)
hole2.Profile = sketch19
hole2.ThreadType = "None"
hole2.Diameter = 2.6
hole2.DepthType = "Dimension"
hole2.Depth = 2
hole2.DrillPoint = "Flat"
hole2.Reversed = True

# Sketch on YZ plane
sketch20 = doc.addObject("Sketcher::SketchObject", "Sketch019")
body.addObject(sketch20)
sketch20.AttachmentSupport = (doc.YZ_Plane, [""])
sketch20.MapMode = "FlatFace"
sketch20.AttachmentOffset = App.Placement(Vector(0, 0, 54), App.Rotation())
sketch20.addGeometry(Part.Circle(Vector(14, 72, 0), Vector(0, 0, 1), 5), False)
sketch20.addConstraint([
    Sketcher.Constraint("Diameter", 0, 10.2),
    Sketcher.Constraint("DistanceX", -1, 1, 0, 3, 14.0),
    Sketcher.Constraint("DistanceY", -1, 1, 0, 3, 72.0),
])
doc.recompute()
hole3 = doc.addObject("PartDesign::Hole", "Hole002")
body.addObject(hole3)
hole3.Profile = sketch20
hole3.ThreadType = "None"
hole3.Diameter = 10.2
hole3.DepthType = "Dimension"
hole3.Depth = 2
hole3.DrillPoint = "Flat"

# Sketch on YZ plane
sketch21 = doc.addObject("Sketcher::SketchObject", "Sketch020")
body.addObject(sketch21)
sketch21.AttachmentSupport = (doc.YZ_Plane, [""])
sketch21.MapMode = "FlatFace"
sketch21.addGeometry([
    Part.Circle(Vector(25, 72, 0), Vector(0, 0, 1), 1.3),  # 0
    Part.Circle(Vector(3, 72, 0), Vector(0, 0, 1), 1.3),  # 1
    Part.Circle(Vector(21.8, 64.2, 0), Vector(0, 0, 1), 1.3),  # 2
    Part.Circle(Vector(6.2, 64.2, 0), Vector(0, 0, 1), 1.3),  # 3
    Part.Circle(Vector(14, 61, 0), Vector(0, 0, 1), 1.3),  # 4
], False)
sketch21.addConstraint([
    Sketcher.Constraint("Equal", 0, 1),
    Sketcher.Constraint("Equal", 1, 2),
    Sketcher.Constraint("Equal", 2, 3),
    Sketcher.Constraint("Equal", 3, 4),
    Sketcher.Constraint("Horizontal", 0, 3, 1, 3),
    Sketcher.Constraint("Horizontal", 2, 3, 3, 3),
    Sketcher.Constraint("Diameter", 0, 2.6),
    Sketcher.Constraint("DistanceX", -1, 1, 0, 3, 25.0),
    Sketcher.Constraint("DistanceY", -1, 1, 0, 3, 72.0),
    Sketcher.Constraint("DistanceX", -1, 1, 1, 3, 3.0),
    Sketcher.Constraint("DistanceX", -1, 1, 4, 3, 14.0),
    Sketcher.Constraint("DistanceY", -1, 1, 4, 3, 61.0),
    Sketcher.Constraint("DistanceX", 3, 3, 2, 3, 15.556349),
    Sketcher.Constraint("DistanceX", -1, 1, 2, 3, 21.778175),
    Sketcher.Constraint("DistanceY", -1, 1, 2, 3, 64.221825),
])
doc.recompute()
hole4 = doc.addObject("PartDesign::Hole", "Hole003")
body.addObject(hole4)
hole4.Profile = sketch21
hole4.ThreadType = "None"
hole4.Diameter = 2.6
hole4.DepthType = "Dimension"
hole4.Depth = 2
hole4.DrillPoint = "Flat"

# Sketch on YZ plane
sketch22 = doc.addObject("Sketcher::SketchObject", "Sketch021")
body.addObject(sketch22)
sketch22.AttachmentSupport = (doc.YZ_Plane, [""])
sketch22.MapMode = "FlatFace"
sketch22.addGeometry([
    Part.Circle(Vector(22, 18, 0), Vector(0, 0, 1), 0.8),
    Part.Circle(Vector(6, 18, 0), Vector(0, 0, 1), 0.8),
    Part.Circle(Vector(6, 51, 0), Vector(0, 0, 1), 0.8),
    Part.Circle(Vector(22, 51, 0), Vector(0, 0, 1), 0.8),
], False)
sketch22.addConstraint([
    Sketcher.Constraint("Equal", 0, 1),
    Sketcher.Constraint("Equal", 1, 2),
    Sketcher.Constraint("Equal", 2, 3),
    Sketcher.Constraint("Horizontal", 0, 3, 1, 3),
    Sketcher.Constraint("Horizontal", 2, 3, 3, 3),
    Sketcher.Constraint("Vertical", 1, 3, 2, 3),
    Sketcher.Constraint("Vertical", 0, 3, 3, 3),
    Sketcher.Constraint("Diameter", 0, 1.567),
    Sketcher.Constraint("DistanceX", -1, 1, 0, 3, 22.0),
    Sketcher.Constraint("DistanceY", -1, 1, 0, 3, 18.0),
    Sketcher.Constraint("DistanceX", -1, 1, 1, 3, 6.0),
    Sketcher.Constraint("DistanceY", -1, 1, 2, 3, 51.0),
])
doc.recompute()
hole5 = doc.addObject("PartDesign::Hole", "Hole004")
body.addObject(hole5)
hole5.Profile = sketch22
hole5.ThreadType = "None"
hole5.Diameter = 1.567
hole5.DepthType = "Dimension"
hole5.Depth = 2
hole5.DrillPoint = "Flat"

# Sketch on YZ plane
sketch23 = doc.addObject("Sketcher::SketchObject", "Sketch022")
body.addObject(sketch23)
sketch23.AttachmentSupport = (doc.YZ_Plane, [""])
sketch23.MapMode = "FlatFace"
sketch23.addGeometry(Part.Circle(Vector(14, 72, 0), Vector(0, 0, 1), 5), False)
sketch23.addConstraint([
    Sketcher.Constraint("Diameter", 0, 10.2),
    Sketcher.Constraint("DistanceX", -1, 1, 0, 3, 14.0),
    Sketcher.Constraint("DistanceY", -1, 1, 0, 3, 72.0),
])
doc.recompute()
hole6 = doc.addObject("PartDesign::Hole", "Hole005")
body.addObject(hole6)
hole6.Profile = sketch23
hole6.ThreadType = "None"
hole6.Diameter = 10.2
hole6.DepthType = "Dimension"
hole6.Depth = 2
hole6.DrillPoint = "Flat"

# Sketch on XY plane
sketch24 = doc.addObject("Sketcher::SketchObject", "Sketch023")
body.addObject(sketch24)
sketch24.AttachmentSupport = (doc.XY_Plane, [""])
sketch24.MapMode = "FlatFace"
sketch24.AttachmentOffset = App.Placement(Vector(0, 0, 2), App.Rotation())
sketch24.addGeometry(Part.Circle(Vector(26, 14, 0), Vector(0, 0, 1), 5), False)
sketch24.addConstraint([
    Sketcher.Constraint("Diameter", 0, 10.2),
    Sketcher.Constraint("DistanceX", -1, 1, 0, 3, 26.0),
    Sketcher.Constraint("DistanceY", -1, 1, 0, 3, 14.0),
])
doc.recompute()
hole7 = doc.addObject("PartDesign::Hole", "Hole006")
body.addObject(hole7)
hole7.Profile = sketch24
hole7.ThreadType = "None"
hole7.Diameter = 10.2
hole7.DepthType = "Dimension"
hole7.Depth = 2
hole7.DrillPoint = "Flat"

# Sketch on XY plane
sketch25 = doc.addObject("Sketcher::SketchObject", "Sketch024")
body.addObject(sketch25)
sketch25.AttachmentSupport = (doc.XY_Plane, [""])
sketch25.MapMode = "FlatFace"
sketch25.AttachmentOffset = App.Placement(Vector(0, 0, 2), App.Rotation())
sketch25.addGeometry([
    Part.Circle(Vector(45, 3, 0), Vector(0, 0, 1), 1.3),  # 0
    Part.Circle(Vector(7, 3, 0), Vector(0, 0, 1), 1.3),  # 1
    Part.Circle(Vector(45, 25, 0), Vector(0, 0, 1), 1.3),  # 2
    Part.Circle(Vector(7, 25, 0), Vector(0, 0, 1), 1.3),  # 3
    Part.Circle(Vector(26, 25, 0), Vector(0, 0, 1), 1.3),  # 4
    Part.Circle(Vector(18.2, 21.8, 0), Vector(0, 0, 1), 1.3),  # 5
    Part.Circle(Vector(15, 14, 0), Vector(0, 0, 1), 1.3),  # 6
    Part.Circle(Vector(18.2, 6.2, 0), Vector(0, 0, 1), 1.3),  # 7
    Part.Circle(Vector(26, 3, 0), Vector(0, 0, 1), 1.3),  # 8
    Part.Circle(Vector(33.8, 6.2, 0), Vector(0, 0, 1), 1.3),  # 9
    Part.Circle(Vector(37, 14, 0), Vector(0, 0, 1), 1.3),  # 10
    Part.Circle(Vector(33.8, 21.8, 0), Vector(0, 0, 1), 1.3),  # 11
], False)
sketch25.addConstraint([
    Sketcher.Constraint("Equal", 0, 1),
    Sketcher.Constraint("Equal", 1, 2),
    Sketcher.Constraint("Equal", 2, 3),
    Sketcher.Constraint("Equal", 3, 4),
    Sketcher.Constraint("Equal", 4, 5),
    Sketcher.Constraint("Equal", 5, 6),
    Sketcher.Constraint("Equal", 6, 7),
    Sketcher.Constraint("Equal", 7, 8),
    Sketcher.Constraint("Equal", 8, 9),
    Sketcher.Constraint("Equal", 9, 10),
    Sketcher.Constraint("Equal", 10, 11),
    Sketcher.Constraint("Horizontal", 0, 3, 1, 3),
    Sketcher.Constraint("Horizontal", 2, 3, 3, 3),
    Sketcher.Constraint("Horizontal", 3, 3, 4, 3),
    Sketcher.Constraint("Horizontal", 1, 3, 8, 3),
    Sketcher.Constraint("Horizontal", 7, 3, 9, 3),
    Sketcher.Constraint("Horizontal", 6, 3, 10, 3),
    Sketcher.Constraint("Horizontal", 5, 3, 11, 3),
    Sketcher.Constraint("Vertical", 0, 3, 2, 3),
    Sketcher.Constraint("Vertical", 1, 3, 3, 3),
    Sketcher.Constraint("Vertical", 5, 3, 7, 3),
    Sketcher.Constraint("Vertical", 4, 3, 8, 3),
    Sketcher.Constraint("Vertical", 9, 3, 11, 3),
    Sketcher.Constraint("Diameter", 0, 2.6),
    Sketcher.Constraint("DistanceX", -1, 1, 0, 3, 45.0),
    Sketcher.Constraint("DistanceY", -1, 1, 0, 3, 3.0),
    Sketcher.Constraint("DistanceX", -1, 1, 1, 3, 7.0),
    Sketcher.Constraint("DistanceY", -1, 1, 2, 3, 25.0),
    Sketcher.Constraint("DistanceX", -1, 1, 4, 3, 26.0),
    Sketcher.Constraint("DistanceX", -1, 1, 6, 3, 15.0),
    Sketcher.Constraint("DistanceY", -1, 1, 6, 3, 14.0),
    Sketcher.Constraint("DistanceX", -1, 1, 10, 3, 37.0),
    Sketcher.Constraint("DistanceY", 7, 3, 5, 3, 15.556349),
    Sketcher.Constraint("DistanceX", 7, 3, 9, 3, 15.556349),
    Sketcher.Constraint("DistanceX", -1, 1, 5, 3, 18.221825),
    Sketcher.Constraint("DistanceY", -1, 1, 5, 3, 21.778175),
])
doc.recompute()
hole8 = doc.addObject("PartDesign::Hole", "Hole007")
body.addObject(hole8)
hole8.Profile = sketch25
hole8.ThreadType = "None"
hole8.Diameter = 2.6
hole8.DepthType = "Dimension"
hole8.Depth = 2
hole8.DrillPoint = "Flat"
doc.recompute()

fillet = doc.addObject("PartDesign::Fillet", "Fillet")
body.addObject(fillet)
fillet.Base = (hole8, edges_at(hole8, [
    (53, 6, 48),
    (53, 6, 43),
    (53, 22, 43),
    (53, 22, 48),
    (53, 6, 58),
    (53, 6, 54),
    (53, 22, 54),
    (53, 22, 58),
    (-1, 6, 58),
    (-1, 22, 58),
    (-1, 22, 54),
    (-1, 6, 54),
    (-1, 22, 48),
    (-1, 22, 43),
    (-1, 6, 43),
    (-1, 6, 48),
    (-1, 6, 10),
    (-1, 6, 15),
    (-1, 22, 15),
    (-1, 22, 10),
    (-1, 6, 21),
    (-1, 6, 26),
    (-1, 22, 26),
    (-1, 22, 21),
    (-1, 6, 32),
    (-1, 6, 37),
    (-1, 22, 37),
    (-1, 22, 32),
    (53, 6, 37),
    (53, 22, 37),
    (53, 22, 32),
    (53, 6, 32),
    (53, 22, 21),
    (53, 22, 26),
    (53, 6, 26),
    (53, 6, 21),
    (53, 22, 10),
    (53, 22, 15),
    (53, 6, 15),
    (53, 6, 10),
]))
fillet.Radius = 1
doc.recompute()

fillet2 = doc.addObject("PartDesign::Fillet", "Fillet001")
body.addObject(fillet2)
fillet2.Base = (fillet, edges_at(fillet, [
    (7.5, 9, 1),
    (7.5, 19, 1),
    (12, 19, 1),
    (12, 9, 1),
    (44.5, 9, 1),
    (40, 9, 1),
    (40, 19, 1),
    (44.5, 19, 1),
]))
fillet2.Radius = 1.5
doc.recompute()

fillet3 = doc.addObject("PartDesign::Fillet", "Fillet002")
body.addObject(fillet3)
fillet3.Base = (fillet2, edges_at(fillet2, [
    (-1, 0.325, 75),
    (-1, 27.675, 75),
    (53, 18.124, 75),
    (53, 9.876, 75),
    (-1, 9.876, 75),
    (-1, 18.124, 75),
    (53, 27.675, 75),
    (53, 0.325, 75),
]))
fillet3.Radius = 2
doc.recompute()

fillet4 = doc.addObject("PartDesign::Fillet", "Fillet003")
body.addObject(fillet4)
fillet4.Base = (fillet3, edges_at(fillet3, [(52, 14, 2), (0, 14, 2)]))
fillet4.Radius = 2.54
doc.recompute()

fillet5 = doc.addObject("PartDesign::Fillet", "Fillet004")
body.addObject(fillet5)
fillet5.Base = (fillet4, edges_at(fillet4, [(-2, 14, 0), (54, 14, 0)]))
fillet5.Radius = 4.54

doc.recompute()
